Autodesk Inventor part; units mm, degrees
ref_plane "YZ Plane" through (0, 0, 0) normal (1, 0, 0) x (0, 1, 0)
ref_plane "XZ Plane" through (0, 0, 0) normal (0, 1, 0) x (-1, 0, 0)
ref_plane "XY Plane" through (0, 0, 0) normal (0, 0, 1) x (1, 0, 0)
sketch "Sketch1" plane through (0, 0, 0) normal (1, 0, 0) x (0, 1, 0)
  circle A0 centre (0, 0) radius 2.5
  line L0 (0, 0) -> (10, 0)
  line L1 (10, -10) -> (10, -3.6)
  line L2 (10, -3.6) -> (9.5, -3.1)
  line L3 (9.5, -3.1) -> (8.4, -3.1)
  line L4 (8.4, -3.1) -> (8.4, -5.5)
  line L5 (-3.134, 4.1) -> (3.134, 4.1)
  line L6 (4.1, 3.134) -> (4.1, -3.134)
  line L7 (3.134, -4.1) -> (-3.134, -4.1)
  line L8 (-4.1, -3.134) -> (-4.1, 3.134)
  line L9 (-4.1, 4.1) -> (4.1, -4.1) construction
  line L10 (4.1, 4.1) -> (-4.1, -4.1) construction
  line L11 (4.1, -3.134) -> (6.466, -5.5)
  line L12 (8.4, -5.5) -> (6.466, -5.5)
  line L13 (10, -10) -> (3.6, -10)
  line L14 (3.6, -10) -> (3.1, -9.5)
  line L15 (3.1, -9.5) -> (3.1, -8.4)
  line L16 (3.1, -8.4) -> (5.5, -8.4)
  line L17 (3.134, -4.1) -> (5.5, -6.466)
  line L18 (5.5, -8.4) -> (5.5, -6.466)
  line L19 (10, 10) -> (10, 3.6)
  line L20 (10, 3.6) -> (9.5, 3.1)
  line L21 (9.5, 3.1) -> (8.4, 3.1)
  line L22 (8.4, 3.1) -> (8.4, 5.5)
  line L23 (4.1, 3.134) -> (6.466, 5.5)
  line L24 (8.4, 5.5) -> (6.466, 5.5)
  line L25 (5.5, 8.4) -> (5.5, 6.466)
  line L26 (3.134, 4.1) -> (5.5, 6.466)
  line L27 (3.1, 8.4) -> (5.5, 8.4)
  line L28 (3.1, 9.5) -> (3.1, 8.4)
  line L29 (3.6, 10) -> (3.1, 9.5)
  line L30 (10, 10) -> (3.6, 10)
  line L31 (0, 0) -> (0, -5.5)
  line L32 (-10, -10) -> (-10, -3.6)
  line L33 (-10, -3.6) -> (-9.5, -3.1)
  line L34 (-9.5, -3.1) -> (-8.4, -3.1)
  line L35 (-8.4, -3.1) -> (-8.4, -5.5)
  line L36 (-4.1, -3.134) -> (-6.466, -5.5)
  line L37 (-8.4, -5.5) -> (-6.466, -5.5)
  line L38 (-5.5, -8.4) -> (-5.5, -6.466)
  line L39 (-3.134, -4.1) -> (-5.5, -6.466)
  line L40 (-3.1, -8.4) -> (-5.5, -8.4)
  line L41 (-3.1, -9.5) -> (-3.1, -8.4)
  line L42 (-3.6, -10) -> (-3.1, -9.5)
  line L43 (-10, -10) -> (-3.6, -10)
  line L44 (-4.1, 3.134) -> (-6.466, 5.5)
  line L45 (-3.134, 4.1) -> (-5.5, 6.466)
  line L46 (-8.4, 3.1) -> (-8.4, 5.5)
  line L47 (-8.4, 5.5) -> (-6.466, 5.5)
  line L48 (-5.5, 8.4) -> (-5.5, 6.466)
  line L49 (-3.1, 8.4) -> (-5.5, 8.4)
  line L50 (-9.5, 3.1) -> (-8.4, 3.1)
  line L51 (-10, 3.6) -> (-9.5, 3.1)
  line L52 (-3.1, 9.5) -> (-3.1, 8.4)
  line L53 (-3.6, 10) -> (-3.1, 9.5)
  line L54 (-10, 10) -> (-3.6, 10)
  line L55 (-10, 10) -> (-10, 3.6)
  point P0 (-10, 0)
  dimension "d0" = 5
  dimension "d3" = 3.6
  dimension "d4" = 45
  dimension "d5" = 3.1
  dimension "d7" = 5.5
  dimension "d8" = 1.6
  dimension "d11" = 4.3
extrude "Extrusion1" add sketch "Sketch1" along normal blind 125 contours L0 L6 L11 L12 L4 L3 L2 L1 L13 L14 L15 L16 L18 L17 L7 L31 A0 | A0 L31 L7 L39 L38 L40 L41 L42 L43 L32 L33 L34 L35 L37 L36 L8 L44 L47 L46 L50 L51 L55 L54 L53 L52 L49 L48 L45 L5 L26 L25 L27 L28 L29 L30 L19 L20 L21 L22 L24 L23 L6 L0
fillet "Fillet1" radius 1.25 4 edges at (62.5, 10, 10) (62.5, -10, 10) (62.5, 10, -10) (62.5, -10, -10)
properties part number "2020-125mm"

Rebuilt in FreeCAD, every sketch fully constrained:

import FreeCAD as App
import Part
import Sketcher
from FreeCAD import Vector
Q = App.Units.Quantity


def edges_at(feature, points):
    """Names of the edges that pass closest to the given points."""
    edges = feature.Shape.Edges
    near = lambda p: min(range(len(edges)), key=lambda i: edges[i].distToShape(Part.Vertex(*p))[0])
    return sorted({f"Edge{near(p) + 1}" for p in points})

doc = App.newDocument("Part")
body = doc.addObject("PartDesign::Body", "Body")

sketch1 = doc.addObject("Sketcher::SketchObject", "Sketch")
body.addObject(sketch1)
sketch1.AttachmentSupport = (doc.YZ_Plane, [""])
sketch1.MapMode = "FlatFace"
sketch1.addGeometry(Part.LineSegment(Vector(4.1, -3.1, 0), Vector(4.1, 3.1, 0)), False)
sketch1.addGeometry(Part.LineSegment(Vector(4.1, 3.1, 0), Vector(6.5, 5.5, 0)), False)
sketch1.addGeometry(Part.LineSegment(Vector(6.5, 5.5, 0), Vector(8.4, 5.5, 0)), False)
sketch1.addGeometry(Part.LineSegment(Vector(8.4, 5.5, 0), Vector(8.4, 3.1, 0)), False)
sketch1.addGeometry(Part.LineSegment(Vector(8.4, 3.1, 0), Vector(9.5, 3.1, 0)), False)
sketch1.addGeometry(Part.LineSegment(Vector(9.5, 3.1, 0), Vector(10, 3.6, 0)), False)
sketch1.addGeometry(Part.LineSegment(Vector(10, 3.6, 0), Vector(10, 10, 0)), False)
sketch1.addGeometry(Part.LineSegment(Vector(10, 10, 0), Vector(3.6, 10, 0)), False)
sketch1.addGeometry(Part.LineSegment(Vector(3.6, 10, 0), Vector(3.1, 9.5, 0)), False)
sketch1.addGeometry(Part.LineSegment(Vector(3.1, 9.5, 0), Vector(3.1, 8.4, 0)), False)
sketch1.addGeometry(Part.LineSegment(Vector(3.1, 8.4, 0), Vector(5.5, 8.4, 0)), False)
sketch1.addGeometry(Part.LineSegment(Vector(5.5, 8.4, 0), Vector(5.5, 6.5, 0)), False)
sketch1.addGeometry(Part.LineSegment(Vector(5.5, 6.5, 0), Vector(3.1, 4.1, 0)), False)
sketch1.addGeometry(Part.LineSegment(Vector(3.1, 4.1, 0), Vector(-3.1, 4.1, 0)), False)
sketch1.addGeometry(Part.LineSegment(Vector(-3.1, 4.1, 0), Vector(-5.5, 6.5, 0)), False)
sketch1.addGeometry(Part.LineSegment(Vector(-5.5, 6.5, 0), Vector(-5.5, 8.4, 0)), False)
sketch1.addGeometry(Part.LineSegment(Vector(-5.5, 8.4, 0), Vector(-3.1, 8.4, 0)), False)
sketch1.addGeometry(Part.LineSegment(Vector(-3.1, 8.4, 0), Vector(-3.1, 9.5, 0)), False)
sketch1.addGeometry(Part.LineSegment(Vector(-3.1, 9.5, 0), Vector(-3.6, 10, 0)), False)
sketch1.addGeometry(Part.LineSegment(Vector(-3.6, 10, 0), Vector(-10, 10, 0)), False)
sketch1.addGeometry(Part.LineSegment(Vector(-10, 10, 0), Vector(-10, 3.6, 0)), False)
sketch1.addGeometry(Part.LineSegment(Vector(-10, 3.6, 0), Vector(-9.5, 3.1, 0)), False)
sketch1.addGeometry(Part.LineSegment(Vector(-9.5, 3.1, 0), Vector(-8.4, 3.1, 0)), False)
sketch1.addGeometry(Part.LineSegment(Vector(-8.4, 3.1, 0), Vector(-8.4, 5.5, 0)), False)
sketch1.addGeometry(Part.LineSegment(Vector(-8.4, 5.5, 0), Vector(-6.5, 5.5, 0)), False)
sketch1.addGeometry(Part.LineSegment(Vector(-6.5, 5.5, 0), Vector(-4.1, 3.1, 0)), False)
sketch1.addGeometry(Part.LineSegment(Vector(-4.1, 3.1, 0), Vector(-4.1, -3.1, 0)), False)
sketch1.addGeometry(Part.LineSegment(Vector(-4.1, -3.1, 0), Vector(-6.5, -5.5, 0)), False)
sketch1.addGeometry(Part.LineSegment(Vector(-6.5, -5.5, 0), Vector(-8.4, -5.5, 0)), False)
sketch1.addGeometry(Part.LineSegment(Vector(-8.4, -5.5, 0), Vector(-8.4, -3.1, 0)), False)
sketch1.addGeometry(Part.LineSegment(Vector(-8.4, -3.1, 0), Vector(-9.5, -3.1, 0)), False)
sketch1.addGeometry(Part.LineSegment(Vector(-9.5, -3.1, 0), Vector(-10, -3.6, 0)), False)
sketch1.addGeometry(Part.LineSegment(Vector(-10, -3.6, 0), Vector(-10, -10, 0)), False)
sketch1.addGeometry(Part.LineSegment(Vector(-10, -10, 0), Vector(-3.6, -10, 0)), False)
sketch1.addGeometry(Part.LineSegment(Vector(-3.6, -10, 0), Vector(-3.1, -9.5, 0)), False)
sketch1.addGeometry(Part.LineSegment(Vector(-3.1, -9.5, 0), Vector(-3.1, -8.4, 0)), False)
sketch1.addGeometry(Part.LineSegment(Vector(-3.1, -8.4, 0), Vector(-5.5, -8.4, 0)), False)
sketch1.addGeometry(Part.LineSegment(Vector(-5.5, -8.4, 0), Vector(-5.5, -6.5, 0)), False)
sketch1.addGeometry(Part.LineSegment(Vector(-5.5, -6.5, 0), Vector(-3.1, -4.1, 0)), False)
sketch1.addGeometry(Part.LineSegment(Vector(-3.1, -4.1, 0), Vector(3.1, -4.1, 0)), False)
sketch1.addGeometry(Part.LineSegment(Vector(3.1, -4.1, 0), Vector(5.5, -6.5, 0)), False)
sketch1.addGeometry(Part.LineSegment(Vector(5.5, -6.5, 0), Vector(5.5, -8.4, 0)), False)
sketch1.addGeometry(Part.LineSegment(Vector(5.5, -8.4, 0), Vector(3.1, -8.4, 0)), False)
sketch1.addGeometry(Part.LineSegment(Vector(3.1, -8.4, 0), Vector(3.1, -9.5, 0)), False)
sketch1.addGeometry(Part.LineSegment(Vector(3.1, -9.5, 0), Vector(3.6, -10, 0)), False)
sketch1.addGeometry(Part.LineSegment(Vector(3.6, -10, 0), Vector(10, -10, 0)), False)
sketch1.addGeometry(Part.LineSegment(Vector(10, -10, 0), Vector(10, -3.6, 0)), False)
sketch1.addGeometry(Part.LineSegment(Vector(10, -3.6, 0), Vector(9.5, -3.1, 0)), False)
sketch1.addGeometry(Part.LineSegment(Vector(9.5, -3.1, 0), Vector(8.4, -3.1, 0)), False)
sketch1.addGeometry(Part.LineSegment(Vector(8.4, -3.1, 0), Vector(8.4, -5.5, 0)), False)
sketch1.addGeometry(Part.LineSegment(Vector(8.4, -5.5, 0), Vector(6.5, -5.5, 0)), False)
sketch1.addGeometry(Part.LineSegment(Vector(6.5, -5.5, 0), Vector(4.1, -3.1, 0)), False)
sketch1.addGeometry(Part.Circle(Vector(0, 0, 0), Vector(0, 0, 1), 2.5), False)
sketch1.addConstraint(Sketcher.Constraint("Coincident", 0, 2, 1, 1))
sketch1.addConstraint(Sketcher.Constraint("Coincident", 1, 2, 2, 1))
sketch1.addConstraint(Sketcher.Constraint("Coincident", 2, 2, 3, 1))
sketch1.addConstraint(Sketcher.Constraint("Coincident", 3, 2, 4, 1))
sketch1.addConstraint(Sketcher.Constraint("Coincident", 4, 2, 5, 1))
sketch1.addConstraint(Sketcher.Constraint("Coincident", 5, 2, 6, 1))
sketch1.addConstraint(Sketcher.Constraint("Coincident", 6, 2, 7, 1))
sketch1.addConstraint(Sketcher.Constraint("Coincident", 7, 2, 8, 1))
sketch1.addConstraint(Sketcher.Constraint("Coincident", 8, 2, 9, 1))
sketch1.addConstraint(Sketcher.Constraint("Coincident", 9, 2, 10, 1))
sketch1.addConstraint(Sketcher.Constraint("Coincident", 10, 2, 11, 1))
sketch1.addConstraint(Sketcher.Constraint("Coincident", 11, 2, 12, 1))
sketch1.addConstraint(Sketcher.Constraint("Coincident", 12, 2, 13, 1))
sketch1.addConstraint(Sketcher.Constraint("Coincident", 13, 2, 14, 1))
sketch1.addConstraint(Sketcher.Constraint("Coincident", 14, 2, 15, 1))
sketch1.addConstraint(Sketcher.Constraint("Coincident", 15, 2, 16, 1))
sketch1.addConstraint(Sketcher.Constraint("Coincident", 16, 2, 17, 1))
sketch1.addConstraint(Sketcher.Constraint("Coincident", 17, 2, 18, 1))
sketch1.addConstraint(Sketcher.Constraint("Coincident", 18, 2, 19, 1))
sketch1.addConstraint(Sketcher.Constraint("Coincident", 19, 2, 20, 1))
sketch1.addConstraint(Sketcher.Constraint("Coincident", 20, 2, 21, 1))
sketch1.addConstraint(Sketcher.Constraint("Coincident", 21, 2, 22, 1))
sketch1.addConstraint(Sketcher.Constraint("Coincident", 22, 2, 23, 1))
sketch1.addConstraint(Sketcher.Constraint("Coincident", 23, 2, 24, 1))
sketch1.addConstraint(Sketcher.Constraint("Coincident", 24, 2, 25, 1))
sketch1.addConstraint(Sketcher.Constraint("Coincident", 25, 2, 26, 1))
sketch1.addConstraint(Sketcher.Constraint("Coincident", 26, 2, 27, 1))
sketch1.addConstraint(Sketcher.Constraint("Coincident", 27, 2, 28, 1))
sketch1.addConstraint(Sketcher.Constraint("Coincident", 28, 2, 29, 1))
sketch1.addConstraint(Sketcher.Constraint("Coincident", 29, 2, 30, 1))
sketch1.addConstraint(Sketcher.Constraint("Coincident", 30, 2, 31, 1))
sketch1.addConstraint(Sketcher.Constraint("Coincident", 31, 2, 32, 1))
sketch1.addConstraint(Sketcher.Constraint("Coincident", 32, 2, 33, 1))
sketch1.addConstraint(Sketcher.Constraint("Coincident", 33, 2, 34, 1))
sketch1.addConstraint(Sketcher.Constraint("Coincident", 34, 2, 35, 1))
sketch1.addConstraint(Sketcher.Constraint("Coincident", 35, 2, 36, 1))
sketch1.addConstraint(Sketcher.Constraint("Coincident", 36, 2, 37, 1))
sketch1.addConstraint(Sketcher.Constraint("Coincident", 37, 2, 38, 1))
sketch1.addConstraint(Sketcher.Constraint("Coincident", 38, 2, 39, 1))
sketch1.addConstraint(Sketcher.Constraint("Coincident", 39, 2, 40, 1))
sketch1.addConstraint(Sketcher.Constraint("Coincident", 40, 2, 41, 1))
sketch1.addConstraint(Sketcher.Constraint("Coincident", 41, 2, 42, 1))
sketch1.addConstraint(Sketcher.Constraint("Coincident", 42, 2, 43, 1))
sketch1.addConstraint(Sketcher.Constraint("Coincident", 43, 2, 44, 1))
sketch1.addConstraint(Sketcher.Constraint("Coincident", 44, 2, 45, 1))
sketch1.addConstraint(Sketcher.Constraint("Coincident", 45, 2, 46, 1))
sketch1.addConstraint(Sketcher.Constraint("Coincident", 46, 2, 47, 1))
sketch1.addConstraint(Sketcher.Constraint("Coincident", 47, 2, 48, 1))
sketch1.addConstraint(Sketcher.Constraint("Coincident", 48, 2, 49, 1))
sketch1.addConstraint(Sketcher.Constraint("Coincident", 49, 2, 50, 1))
sketch1.addConstraint(Sketcher.Constraint("Coincident", 50, 2, 51, 1))
sketch1.addConstraint(Sketcher.Constraint("Coincident", 51, 2, 0, 1))
sketch1.addConstraint(Sketcher.Constraint("Vertical", 0))
sketch1.addConstraint(Sketcher.Constraint("Horizontal", 2))
sketch1.addConstraint(Sketcher.Constraint("Vertical", 3))
sketch1.addConstraint(Sketcher.Constraint("Horizontal", 4))
sketch1.addConstraint(Sketcher.Constraint("Vertical", 6))
sketch1.addConstraint(Sketcher.Constraint("Horizontal", 7))
sketch1.addConstraint(Sketcher.Constraint("Vertical", 9))
sketch1.addConstraint(Sketcher.Constraint("Horizontal", 10))
sketch1.addConstraint(Sketcher.Constraint("Vertical", 11))
sketch1.addConstraint(Sketcher.Constraint("Horizontal", 13))
sketch1.addConstraint(Sketcher.Constraint("Vertical", 15))
sketch1.addConstraint(Sketcher.Constraint("Horizontal", 16))
sketch1.addConstraint(Sketcher.Constraint("Vertical", 17))
sketch1.addConstraint(Sketcher.Constraint("Horizontal", 19))
sketch1.addConstraint(Sketcher.Constraint("Vertical", 20))
sketch1.addConstraint(Sketcher.Constraint("Horizontal", 22))
sketch1.addConstraint(Sketcher.Constraint("Vertical", 23))
sketch1.addConstraint(Sketcher.Constraint("Horizontal", 24))
sketch1.addConstraint(Sketcher.Constraint("Vertical", 26))
sketch1.addConstraint(Sketcher.Constraint("Horizontal", 28))
sketch1.addConstraint(Sketcher.Constraint("Vertical", 29))
sketch1.addConstraint(Sketcher.Constraint("Horizontal", 30))
sketch1.addConstraint(Sketcher.Constraint("Vertical", 32))
sketch1.addConstraint(Sketcher.Constraint("Horizontal", 33))
sketch1.addConstraint(Sketcher.Constraint("Vertical", 35))
sketch1.addConstraint(Sketcher.Constraint("Horizontal", 36))
sketch1.addConstraint(Sketcher.Constraint("Vertical", 37))
sketch1.addConstraint(Sketcher.Constraint("Horizontal", 39))
sketch1.addConstraint(Sketcher.Constraint("Vertical", 41))
sketch1.addConstraint(Sketcher.Constraint("Horizontal", 42))
sketch1.addConstraint(Sketcher.Constraint("Vertical", 43))
sketch1.addConstraint(Sketcher.Constraint("Horizontal", 45))
sketch1.addConstraint(Sketcher.Constraint("Vertical", 46))
sketch1.addConstraint(Sketcher.Constraint("Horizontal", 48))
sketch1.addConstraint(Sketcher.Constraint("Vertical", 49))
sketch1.addConstraint(Sketcher.Constraint("Horizontal", 50))
sketch1.addConstraint(Sketcher.Constraint("Coincident", 52, 3, -1, 1))
sketch1.addConstraint(Sketcher.Constraint("Symmetric", 0, 2, 26, 2, -1, 1))
sketch1.addConstraint(Sketcher.Constraint("Symmetric", 1, 2, 27, 2, -1, 1))
sketch1.addConstraint(Sketcher.Constraint("Symmetric", 3, 2, 29, 2, -1, 1))
sketch1.addConstraint(Sketcher.Constraint("Symmetric", 5, 2, 31, 2, -1, 1))
sketch1.addConstraint(Sketcher.Constraint("Symmetric", 7, 2, 33, 2, -1, 1))
sketch1.addConstraint(Sketcher.Constraint("Symmetric", 8, 2, 34, 2, -1, 1))
sketch1.addConstraint(Sketcher.Constraint("Symmetric", 10, 2, 36, 2, -1, 1))
sketch1.addConstraint(Sketcher.Constraint("Symmetric", 12, 2, 38, 2, -1, 1))
sketch1.addConstraint(Sketcher.Constraint("Symmetric", 14, 2, 40, 2, -1, 1))
sketch1.addConstraint(Sketcher.Constraint("Symmetric", 16, 2, 42, 2, -1, 1))
sketch1.addConstraint(Sketcher.Constraint("Symmetric", 18, 2, 44, 2, -1, 1))
sketch1.addConstraint(Sketcher.Constraint("Symmetric", 20, 2, 46, 2, -1, 1))
sketch1.addConstraint(Sketcher.Constraint("Symmetric", 21, 2, 47, 2, -1, 1))
sketch1.addConstraint(Sketcher.Constraint("Symmetric", 23, 2, 49, 2, -1, 1))
sketch1.addConstraint(Sketcher.Constraint("Symmetric", 11, 2, 14, 2, -2))
sketch1.addConstraint(Sketcher.Constraint("Symmetric", 9, 2, 16, 2, -2))
sketch1.addConstraint(Sketcher.Constraint("Symmetric", 7, 2, 18, 2, -2))
sketch1.addConstraint(Sketcher.Constraint("Symmetric", 5, 2, 20, 2, -2))
sketch1.addConstraint(Sketcher.Constraint("Symmetric", 4, 2, 21, 2, -2))
sketch1.addConstraint(Sketcher.Constraint("Symmetric", 2, 2, 23, 2, -2))
sketch1.addConstraint(Sketcher.Constraint("Parallel", 1, 5))
sketch1.addConstraint(Sketcher.Constraint("Parallel", 5, 8))
sketch1.addConstraint(Sketcher.Constraint("Parallel", 8, 12))
sketch1.addConstraint(Sketcher.Constraint("Perpendicular", 12, 14))
sketch1.addConstraint(Sketcher.Constraint("Parallel", 14, 18))
sketch1.addConstraint(Sketcher.Constraint("Parallel", 18, 21))
sketch1.addConstraint(Sketcher.Constraint("Parallel", 21, 25))
sketch1.addConstraint(Sketcher.Constraint("Parallel", 27, 31))
sketch1.addConstraint(Sketcher.Constraint("Parallel", 34, 38))
sketch1.addConstraint(Sketcher.Constraint("Perpendicular", 38, 40))
sketch1.addConstraint(Sketcher.Constraint("Parallel", 40, 44))
sketch1.addConstraint(Sketcher.Constraint("Parallel", 47, 51))
sketch1.addConstraint(Sketcher.Constraint("Horizontal", 0, 2, 25, 2))
sketch1.addConstraint(Sketcher.Constraint("Horizontal", 26, 2, 51, 2))
sketch1.addConstraint(Sketcher.Constraint("Equal", 39, 0))
sketch1.addConstraint(Sketcher.Constraint("Equal", 42, 3))
sketch1.addConstraint(Sketcher.Constraint("Equal", 45, 6))
sketch1.addConstraint(Sketcher.Constraint("Equal", 48, 9))
sketch1.addConstraint(Sketcher.Constraint("Equal", 50, 11))
sketch1.addConstraint(Sketcher.Constraint("Equal", 5, 8))
sketch1.addConstraint(Sketcher.Constraint("Equal", 1, 12))
sketch1.addConstraint(Sketcher.Constraint("Diameter", 52, Q("5 mm")))
sketch1.addConstraint(Sketcher.Constraint("DistanceY", -1, 1, 1, 2, Q("5.5 mm")))
sketch1.addConstraint(Sketcher.Constraint("DistanceY", -1, 1, 3, 2, Q("3.1 mm")))
sketch1.addConstraint(Sketcher.Constraint("DistanceY", -1, 1, 5, 2, Q("3.6 mm")))
sketch1.addConstraint(Sketcher.Constraint("DistanceX", 0, 2, 2, 2, Q("4.3 mm")))
sketch1.addConstraint(Sketcher.Constraint("DistanceX", 3, 2, 5, 2, Q("1.6 mm")))
sketch1.addConstraint(Sketcher.Constraint("DistanceX", 7, 2, 7, 1, Q("6.4 mm")))
sketch1.addConstraint(Sketcher.Constraint("DistanceX", 2, 1, 2, 2, Q("1.934 mm")))
pad1 = doc.addObject("PartDesign::Pad", "Pad")
body.addObject(pad1)
pad1.Profile = sketch1
pad1.Length = 125
doc.recompute()

fillet = doc.addObject("PartDesign::Fillet", "Fillet")
body.addObject(fillet)
fillet.Base = (pad1, edges_at(pad1, [
    (62.5, 10, 10),
    (62.5, -10, 10),
    (62.5, 10, -10),
    (62.5, -10, -10),
]))
fillet.Radius = 1.25

doc.recompute()
